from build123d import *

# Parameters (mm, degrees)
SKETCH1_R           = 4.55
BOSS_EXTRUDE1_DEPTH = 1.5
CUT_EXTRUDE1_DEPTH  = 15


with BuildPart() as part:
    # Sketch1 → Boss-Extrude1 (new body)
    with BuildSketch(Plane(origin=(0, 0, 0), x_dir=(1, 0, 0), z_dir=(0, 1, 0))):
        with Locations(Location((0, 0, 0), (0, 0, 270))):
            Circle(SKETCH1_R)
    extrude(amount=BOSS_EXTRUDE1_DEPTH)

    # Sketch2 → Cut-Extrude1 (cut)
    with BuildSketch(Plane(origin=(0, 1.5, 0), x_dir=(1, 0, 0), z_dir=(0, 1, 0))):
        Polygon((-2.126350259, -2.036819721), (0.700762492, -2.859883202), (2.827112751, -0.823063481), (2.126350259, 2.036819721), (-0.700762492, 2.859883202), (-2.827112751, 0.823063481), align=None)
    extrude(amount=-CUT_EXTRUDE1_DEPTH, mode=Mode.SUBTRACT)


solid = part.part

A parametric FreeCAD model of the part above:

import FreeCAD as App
import Part
import Sketcher
Q = App.Units.Quantity

doc = App.newDocument("Part")
body = doc.addObject("PartDesign::Body", "Body")

# Sketch on XZ plane
sketch1 = body.newObject("Sketcher::SketchObject", "Sketch")
sketch1.AttachmentSupport = (doc.getObject("XZ_Plane"), [""])
sketch1.MapMode = "FlatFace"
sketch1.addGeometry(Part.Circle(App.Vector(0, 0, 0), App.Vector(0, 0, 1), 4.5), False)
sketch1.addConstraint([
    Sketcher.Constraint("Coincident", 0, 3, -1, 1),
    Sketcher.Constraint("Diameter", 0, Q("9.1 mm")),
])
pad1 = body.newObject("PartDesign::Pad", "Pad")
pad1.Profile = sketch1
pad1.Length = 1.5
pad1.Reversed = True

# Sketch on XZ plane
sketch2 = body.newObject("Sketcher::SketchObject", "Sketch001")
sketch2.AttachmentSupport = (doc.getObject("XZ_Plane"), [""])
sketch2.MapMode = "FlatFace"
sketch2.AttachmentOffset = App.Placement(App.Vector(0, 0, -1.5), App.Rotation())
sketch2.addGeometry([
    Part.LineSegment(App.Vector(-2.1, 2, 0), App.Vector(0.7, 2.9, 0)),  # 0
    Part.LineSegment(App.Vector(0.7, 2.9, 0), App.Vector(2.8, 0.8, 0)),  # 1
    Part.LineSegment(App.Vector(2.8, 0.8, 0), App.Vector(2.1, -2, 0)),  # 2
    Part.LineSegment(App.Vector(2.1, -2, 0), App.Vector(-0.7, -2.9, 0)),  # 3
    Part.LineSegment(App.Vector(-0.7, -2.9, 0), App.Vector(-2.8, -0.8, 0)),  # 4
    Part.LineSegment(App.Vector(-2.8, -0.8, 0), App.Vector(-2.1, 2, 0)),  # 5
], False)
sketch2.addConstraint([
    Sketcher.Constraint("Coincident", 0, 2, 1, 1),
    Sketcher.Constraint("Coincident", 1, 2, 2, 1),
    Sketcher.Constraint("Coincident", 2, 2, 3, 1),
    Sketcher.Constraint("Coincident", 3, 2, 4, 1),
    Sketcher.Constraint("Coincident", 4, 2, 5, 1),
    Sketcher.Constraint("Coincident", 5, 2, 0, 1),
    Sketcher.Constraint("Symmetric", 0, 2, 3, 2, -1, 1),
    Sketcher.Constraint("Symmetric", 1, 2, 4, 2, -1, 1),
    Sketcher.Constraint("Symmetric", 2, 2, 5, 2, -1, 1),
    Sketcher.Constraint("Equal", 0, 1),
    Sketcher.Constraint("Equal", 1, 2),
    Sketcher.Constraint("DistanceX", 5, 2, 2, 2, Q("4.252701 mm")),
    Sketcher.Constraint("DistanceY", 2, 2, -1, 1, Q("2.03682 mm")),
    Sketcher.Constraint("DistanceX", 0, 2, 1, 2, Q("2.12635 mm")),
    Sketcher.Constraint("DistanceY", 1, 2, 0, 2, Q("2.03682 mm")),
])
pocket1 = body.newObject("PartDesign::Pocket", "Pocket")
pocket1.Profile = sketch2
pocket1.Length = 15
pocket1.Reversed = True

doc.recompute()
